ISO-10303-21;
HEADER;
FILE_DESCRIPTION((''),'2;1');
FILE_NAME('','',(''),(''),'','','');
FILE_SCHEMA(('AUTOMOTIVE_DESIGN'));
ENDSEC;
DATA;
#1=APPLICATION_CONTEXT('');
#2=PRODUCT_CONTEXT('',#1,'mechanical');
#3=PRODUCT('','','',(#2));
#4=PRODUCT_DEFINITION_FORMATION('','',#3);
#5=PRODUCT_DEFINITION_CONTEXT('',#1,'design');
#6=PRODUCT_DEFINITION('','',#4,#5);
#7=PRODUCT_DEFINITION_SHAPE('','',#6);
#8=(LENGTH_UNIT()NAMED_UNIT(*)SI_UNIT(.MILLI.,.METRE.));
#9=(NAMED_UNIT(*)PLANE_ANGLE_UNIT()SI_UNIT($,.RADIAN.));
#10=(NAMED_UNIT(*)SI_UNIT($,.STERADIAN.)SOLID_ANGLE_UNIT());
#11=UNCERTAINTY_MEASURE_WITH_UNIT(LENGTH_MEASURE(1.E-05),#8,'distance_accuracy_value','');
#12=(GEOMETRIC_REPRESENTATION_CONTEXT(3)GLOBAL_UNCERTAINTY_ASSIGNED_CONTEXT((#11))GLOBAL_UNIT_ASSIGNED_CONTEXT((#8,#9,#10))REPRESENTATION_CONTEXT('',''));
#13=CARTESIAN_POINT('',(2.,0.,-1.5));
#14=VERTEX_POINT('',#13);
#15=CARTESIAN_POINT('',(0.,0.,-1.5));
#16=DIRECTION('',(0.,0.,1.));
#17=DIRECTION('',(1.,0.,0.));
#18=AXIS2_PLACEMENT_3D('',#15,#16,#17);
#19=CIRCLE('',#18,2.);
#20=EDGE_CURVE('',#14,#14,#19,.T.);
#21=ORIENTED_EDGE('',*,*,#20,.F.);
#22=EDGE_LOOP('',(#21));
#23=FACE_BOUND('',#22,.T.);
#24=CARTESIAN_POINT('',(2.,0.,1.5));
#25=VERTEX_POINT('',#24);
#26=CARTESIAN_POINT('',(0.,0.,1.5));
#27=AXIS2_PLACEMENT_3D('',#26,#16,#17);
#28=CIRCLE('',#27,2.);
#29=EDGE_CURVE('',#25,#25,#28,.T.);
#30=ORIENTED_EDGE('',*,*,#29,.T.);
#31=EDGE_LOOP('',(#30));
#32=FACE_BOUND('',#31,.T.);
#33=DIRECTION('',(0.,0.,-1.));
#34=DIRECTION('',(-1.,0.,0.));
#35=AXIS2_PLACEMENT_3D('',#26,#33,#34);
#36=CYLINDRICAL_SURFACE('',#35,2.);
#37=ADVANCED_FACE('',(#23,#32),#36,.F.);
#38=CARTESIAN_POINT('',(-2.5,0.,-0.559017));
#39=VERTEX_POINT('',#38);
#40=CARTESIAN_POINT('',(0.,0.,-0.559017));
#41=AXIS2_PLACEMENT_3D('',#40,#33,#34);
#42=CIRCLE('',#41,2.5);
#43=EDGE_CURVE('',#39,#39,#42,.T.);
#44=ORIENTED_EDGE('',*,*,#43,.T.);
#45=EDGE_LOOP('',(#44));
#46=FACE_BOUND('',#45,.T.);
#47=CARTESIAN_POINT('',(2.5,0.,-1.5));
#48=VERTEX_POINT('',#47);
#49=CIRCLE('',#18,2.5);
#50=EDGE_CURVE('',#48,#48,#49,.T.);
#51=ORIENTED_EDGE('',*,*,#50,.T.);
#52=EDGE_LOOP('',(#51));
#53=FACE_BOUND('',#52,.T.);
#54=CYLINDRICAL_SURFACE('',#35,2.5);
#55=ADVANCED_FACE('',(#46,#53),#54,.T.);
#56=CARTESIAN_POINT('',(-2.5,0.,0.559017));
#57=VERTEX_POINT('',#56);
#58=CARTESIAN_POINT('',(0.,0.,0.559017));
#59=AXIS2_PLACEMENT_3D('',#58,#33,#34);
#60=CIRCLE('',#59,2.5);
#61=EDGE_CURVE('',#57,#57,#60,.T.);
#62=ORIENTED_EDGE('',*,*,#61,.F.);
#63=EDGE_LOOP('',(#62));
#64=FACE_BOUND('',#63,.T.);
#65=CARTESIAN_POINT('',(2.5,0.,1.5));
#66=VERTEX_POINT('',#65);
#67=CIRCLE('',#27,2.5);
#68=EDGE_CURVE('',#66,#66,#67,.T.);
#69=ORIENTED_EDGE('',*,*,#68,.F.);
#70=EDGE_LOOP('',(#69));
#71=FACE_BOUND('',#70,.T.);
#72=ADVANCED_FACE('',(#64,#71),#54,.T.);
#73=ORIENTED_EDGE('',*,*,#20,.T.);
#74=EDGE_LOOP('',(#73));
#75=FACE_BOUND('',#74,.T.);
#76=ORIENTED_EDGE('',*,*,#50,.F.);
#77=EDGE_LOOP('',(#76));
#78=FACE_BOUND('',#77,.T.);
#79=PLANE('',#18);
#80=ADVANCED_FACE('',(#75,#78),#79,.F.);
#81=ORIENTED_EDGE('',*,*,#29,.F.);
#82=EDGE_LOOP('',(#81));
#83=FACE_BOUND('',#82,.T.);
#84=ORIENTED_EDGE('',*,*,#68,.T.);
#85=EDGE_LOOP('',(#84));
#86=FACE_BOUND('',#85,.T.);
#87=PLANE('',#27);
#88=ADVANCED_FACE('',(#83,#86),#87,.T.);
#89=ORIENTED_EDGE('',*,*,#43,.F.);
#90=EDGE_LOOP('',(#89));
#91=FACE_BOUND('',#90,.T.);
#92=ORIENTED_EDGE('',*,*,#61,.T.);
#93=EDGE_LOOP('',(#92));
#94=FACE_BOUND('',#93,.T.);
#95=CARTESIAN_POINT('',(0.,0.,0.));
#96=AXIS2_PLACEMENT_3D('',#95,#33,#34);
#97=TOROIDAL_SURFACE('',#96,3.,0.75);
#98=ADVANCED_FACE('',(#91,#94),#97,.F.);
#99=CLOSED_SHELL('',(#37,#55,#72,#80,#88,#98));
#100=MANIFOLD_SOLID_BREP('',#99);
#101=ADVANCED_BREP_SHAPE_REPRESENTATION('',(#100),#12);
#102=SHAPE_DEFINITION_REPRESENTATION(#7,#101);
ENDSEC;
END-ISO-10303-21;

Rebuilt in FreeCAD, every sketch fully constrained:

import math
import FreeCAD as App
import Part
import Sketcher

V = App.Vector

doc = App.newDocument("Part")
params = doc.addObject("Spreadsheet::Sheet", "Params")
for row, (alias, value) in enumerate([
    ("sketch1_diameter", "5 mm"),
    ("sketch1_diameter2", "4 mm"),
    ("pad1_length", "3 mm"),
    ("sketch2_radius", "0.75 mm"),
    ("groove_angle", "360 deg"),
], start=1):
    params.set(f"A{row}", alias)
    params.set(f"B{row}", "=" + value)
    params.setAlias(f"B{row}", alias)

body = doc.addObject("PartDesign::Body", "Body")

sketch1 = body.newObject("Sketcher::SketchObject", "Sketch")
sketch1.AttachmentSupport = (doc.getObject("XY_Plane"), [""])
sketch1.MapMode = "FlatFace"
sketch1.addGeometry(Part.Circle(V(0, 0, 0), V(0, 0, 1), 2.5), False)
sketch1.addGeometry(Part.Circle(V(0, 0, 0), V(0, 0, 1), 2), False)
sketch1.addConstraint(Sketcher.Constraint("Coincident", 0, 3, -1, 1))
sketch1.addConstraint(Sketcher.Constraint("Coincident", 1, 3, -1, 1))
sketch1.addConstraint(Sketcher.Constraint("Diameter", 0, 5.0))
sketch1.addConstraint(Sketcher.Constraint("Diameter", 1, 4.0))
sketch1.setExpression("Constraints[2]", "Params.sketch1_diameter")
sketch1.setExpression("Constraints[3]", "Params.sketch1_diameter2")
pad1 = body.newObject("PartDesign::Pad", "Pad")
pad1.Profile = sketch1
pad1.setExpression("Length", "Params.pad1_length")
pad1.Midplane = True

sketch2 = body.newObject("Sketcher::SketchObject", "Sketch001")
sketch2.AttachmentSupport = (doc.getObject("XZ_Plane"), [""])
sketch2.MapMode = "FlatFace"
sketch2.addGeometry(Part.LineSegment(V(2.5, 0.6, 0), V(2.5, -0.6, 0)), False)
sketch2.addGeometry(Part.ArcOfCircle(Part.Circle(V(3, 0, 0), V(0, 0, 1), 0.7), math.radians(132), math.radians(228)), False)
sketch2.addConstraint(Sketcher.Constraint("Coincident", 0, 1, 1, 1))
sketch2.addConstraint(Sketcher.Constraint("Coincident", 1, 2, 0, 2))
sketch2.addConstraint(Sketcher.Constraint("Vertical", 0))
sketch2.addConstraint(Sketcher.Constraint("PointOnObject", 1, 3, -1))
sketch2.addConstraint(Sketcher.Constraint("Radius", 1, 0.75))
sketch2.addConstraint(Sketcher.Constraint("DistanceX", -1, 1, 1, 3, 3.0))
sketch2.addConstraint(Sketcher.Constraint("DistanceX", -1, 1, 0, 1, 2.5))
sketch2.setExpression("Constraints[4]", "Params.sketch2_radius")
groove = body.newObject("PartDesign::Groove", "Groove")
groove.Profile = sketch2
groove.ReferenceAxis = (sketch2, ["V_Axis"])
groove.setExpression("Angle", "Params.groove_angle")

doc.recompute()
